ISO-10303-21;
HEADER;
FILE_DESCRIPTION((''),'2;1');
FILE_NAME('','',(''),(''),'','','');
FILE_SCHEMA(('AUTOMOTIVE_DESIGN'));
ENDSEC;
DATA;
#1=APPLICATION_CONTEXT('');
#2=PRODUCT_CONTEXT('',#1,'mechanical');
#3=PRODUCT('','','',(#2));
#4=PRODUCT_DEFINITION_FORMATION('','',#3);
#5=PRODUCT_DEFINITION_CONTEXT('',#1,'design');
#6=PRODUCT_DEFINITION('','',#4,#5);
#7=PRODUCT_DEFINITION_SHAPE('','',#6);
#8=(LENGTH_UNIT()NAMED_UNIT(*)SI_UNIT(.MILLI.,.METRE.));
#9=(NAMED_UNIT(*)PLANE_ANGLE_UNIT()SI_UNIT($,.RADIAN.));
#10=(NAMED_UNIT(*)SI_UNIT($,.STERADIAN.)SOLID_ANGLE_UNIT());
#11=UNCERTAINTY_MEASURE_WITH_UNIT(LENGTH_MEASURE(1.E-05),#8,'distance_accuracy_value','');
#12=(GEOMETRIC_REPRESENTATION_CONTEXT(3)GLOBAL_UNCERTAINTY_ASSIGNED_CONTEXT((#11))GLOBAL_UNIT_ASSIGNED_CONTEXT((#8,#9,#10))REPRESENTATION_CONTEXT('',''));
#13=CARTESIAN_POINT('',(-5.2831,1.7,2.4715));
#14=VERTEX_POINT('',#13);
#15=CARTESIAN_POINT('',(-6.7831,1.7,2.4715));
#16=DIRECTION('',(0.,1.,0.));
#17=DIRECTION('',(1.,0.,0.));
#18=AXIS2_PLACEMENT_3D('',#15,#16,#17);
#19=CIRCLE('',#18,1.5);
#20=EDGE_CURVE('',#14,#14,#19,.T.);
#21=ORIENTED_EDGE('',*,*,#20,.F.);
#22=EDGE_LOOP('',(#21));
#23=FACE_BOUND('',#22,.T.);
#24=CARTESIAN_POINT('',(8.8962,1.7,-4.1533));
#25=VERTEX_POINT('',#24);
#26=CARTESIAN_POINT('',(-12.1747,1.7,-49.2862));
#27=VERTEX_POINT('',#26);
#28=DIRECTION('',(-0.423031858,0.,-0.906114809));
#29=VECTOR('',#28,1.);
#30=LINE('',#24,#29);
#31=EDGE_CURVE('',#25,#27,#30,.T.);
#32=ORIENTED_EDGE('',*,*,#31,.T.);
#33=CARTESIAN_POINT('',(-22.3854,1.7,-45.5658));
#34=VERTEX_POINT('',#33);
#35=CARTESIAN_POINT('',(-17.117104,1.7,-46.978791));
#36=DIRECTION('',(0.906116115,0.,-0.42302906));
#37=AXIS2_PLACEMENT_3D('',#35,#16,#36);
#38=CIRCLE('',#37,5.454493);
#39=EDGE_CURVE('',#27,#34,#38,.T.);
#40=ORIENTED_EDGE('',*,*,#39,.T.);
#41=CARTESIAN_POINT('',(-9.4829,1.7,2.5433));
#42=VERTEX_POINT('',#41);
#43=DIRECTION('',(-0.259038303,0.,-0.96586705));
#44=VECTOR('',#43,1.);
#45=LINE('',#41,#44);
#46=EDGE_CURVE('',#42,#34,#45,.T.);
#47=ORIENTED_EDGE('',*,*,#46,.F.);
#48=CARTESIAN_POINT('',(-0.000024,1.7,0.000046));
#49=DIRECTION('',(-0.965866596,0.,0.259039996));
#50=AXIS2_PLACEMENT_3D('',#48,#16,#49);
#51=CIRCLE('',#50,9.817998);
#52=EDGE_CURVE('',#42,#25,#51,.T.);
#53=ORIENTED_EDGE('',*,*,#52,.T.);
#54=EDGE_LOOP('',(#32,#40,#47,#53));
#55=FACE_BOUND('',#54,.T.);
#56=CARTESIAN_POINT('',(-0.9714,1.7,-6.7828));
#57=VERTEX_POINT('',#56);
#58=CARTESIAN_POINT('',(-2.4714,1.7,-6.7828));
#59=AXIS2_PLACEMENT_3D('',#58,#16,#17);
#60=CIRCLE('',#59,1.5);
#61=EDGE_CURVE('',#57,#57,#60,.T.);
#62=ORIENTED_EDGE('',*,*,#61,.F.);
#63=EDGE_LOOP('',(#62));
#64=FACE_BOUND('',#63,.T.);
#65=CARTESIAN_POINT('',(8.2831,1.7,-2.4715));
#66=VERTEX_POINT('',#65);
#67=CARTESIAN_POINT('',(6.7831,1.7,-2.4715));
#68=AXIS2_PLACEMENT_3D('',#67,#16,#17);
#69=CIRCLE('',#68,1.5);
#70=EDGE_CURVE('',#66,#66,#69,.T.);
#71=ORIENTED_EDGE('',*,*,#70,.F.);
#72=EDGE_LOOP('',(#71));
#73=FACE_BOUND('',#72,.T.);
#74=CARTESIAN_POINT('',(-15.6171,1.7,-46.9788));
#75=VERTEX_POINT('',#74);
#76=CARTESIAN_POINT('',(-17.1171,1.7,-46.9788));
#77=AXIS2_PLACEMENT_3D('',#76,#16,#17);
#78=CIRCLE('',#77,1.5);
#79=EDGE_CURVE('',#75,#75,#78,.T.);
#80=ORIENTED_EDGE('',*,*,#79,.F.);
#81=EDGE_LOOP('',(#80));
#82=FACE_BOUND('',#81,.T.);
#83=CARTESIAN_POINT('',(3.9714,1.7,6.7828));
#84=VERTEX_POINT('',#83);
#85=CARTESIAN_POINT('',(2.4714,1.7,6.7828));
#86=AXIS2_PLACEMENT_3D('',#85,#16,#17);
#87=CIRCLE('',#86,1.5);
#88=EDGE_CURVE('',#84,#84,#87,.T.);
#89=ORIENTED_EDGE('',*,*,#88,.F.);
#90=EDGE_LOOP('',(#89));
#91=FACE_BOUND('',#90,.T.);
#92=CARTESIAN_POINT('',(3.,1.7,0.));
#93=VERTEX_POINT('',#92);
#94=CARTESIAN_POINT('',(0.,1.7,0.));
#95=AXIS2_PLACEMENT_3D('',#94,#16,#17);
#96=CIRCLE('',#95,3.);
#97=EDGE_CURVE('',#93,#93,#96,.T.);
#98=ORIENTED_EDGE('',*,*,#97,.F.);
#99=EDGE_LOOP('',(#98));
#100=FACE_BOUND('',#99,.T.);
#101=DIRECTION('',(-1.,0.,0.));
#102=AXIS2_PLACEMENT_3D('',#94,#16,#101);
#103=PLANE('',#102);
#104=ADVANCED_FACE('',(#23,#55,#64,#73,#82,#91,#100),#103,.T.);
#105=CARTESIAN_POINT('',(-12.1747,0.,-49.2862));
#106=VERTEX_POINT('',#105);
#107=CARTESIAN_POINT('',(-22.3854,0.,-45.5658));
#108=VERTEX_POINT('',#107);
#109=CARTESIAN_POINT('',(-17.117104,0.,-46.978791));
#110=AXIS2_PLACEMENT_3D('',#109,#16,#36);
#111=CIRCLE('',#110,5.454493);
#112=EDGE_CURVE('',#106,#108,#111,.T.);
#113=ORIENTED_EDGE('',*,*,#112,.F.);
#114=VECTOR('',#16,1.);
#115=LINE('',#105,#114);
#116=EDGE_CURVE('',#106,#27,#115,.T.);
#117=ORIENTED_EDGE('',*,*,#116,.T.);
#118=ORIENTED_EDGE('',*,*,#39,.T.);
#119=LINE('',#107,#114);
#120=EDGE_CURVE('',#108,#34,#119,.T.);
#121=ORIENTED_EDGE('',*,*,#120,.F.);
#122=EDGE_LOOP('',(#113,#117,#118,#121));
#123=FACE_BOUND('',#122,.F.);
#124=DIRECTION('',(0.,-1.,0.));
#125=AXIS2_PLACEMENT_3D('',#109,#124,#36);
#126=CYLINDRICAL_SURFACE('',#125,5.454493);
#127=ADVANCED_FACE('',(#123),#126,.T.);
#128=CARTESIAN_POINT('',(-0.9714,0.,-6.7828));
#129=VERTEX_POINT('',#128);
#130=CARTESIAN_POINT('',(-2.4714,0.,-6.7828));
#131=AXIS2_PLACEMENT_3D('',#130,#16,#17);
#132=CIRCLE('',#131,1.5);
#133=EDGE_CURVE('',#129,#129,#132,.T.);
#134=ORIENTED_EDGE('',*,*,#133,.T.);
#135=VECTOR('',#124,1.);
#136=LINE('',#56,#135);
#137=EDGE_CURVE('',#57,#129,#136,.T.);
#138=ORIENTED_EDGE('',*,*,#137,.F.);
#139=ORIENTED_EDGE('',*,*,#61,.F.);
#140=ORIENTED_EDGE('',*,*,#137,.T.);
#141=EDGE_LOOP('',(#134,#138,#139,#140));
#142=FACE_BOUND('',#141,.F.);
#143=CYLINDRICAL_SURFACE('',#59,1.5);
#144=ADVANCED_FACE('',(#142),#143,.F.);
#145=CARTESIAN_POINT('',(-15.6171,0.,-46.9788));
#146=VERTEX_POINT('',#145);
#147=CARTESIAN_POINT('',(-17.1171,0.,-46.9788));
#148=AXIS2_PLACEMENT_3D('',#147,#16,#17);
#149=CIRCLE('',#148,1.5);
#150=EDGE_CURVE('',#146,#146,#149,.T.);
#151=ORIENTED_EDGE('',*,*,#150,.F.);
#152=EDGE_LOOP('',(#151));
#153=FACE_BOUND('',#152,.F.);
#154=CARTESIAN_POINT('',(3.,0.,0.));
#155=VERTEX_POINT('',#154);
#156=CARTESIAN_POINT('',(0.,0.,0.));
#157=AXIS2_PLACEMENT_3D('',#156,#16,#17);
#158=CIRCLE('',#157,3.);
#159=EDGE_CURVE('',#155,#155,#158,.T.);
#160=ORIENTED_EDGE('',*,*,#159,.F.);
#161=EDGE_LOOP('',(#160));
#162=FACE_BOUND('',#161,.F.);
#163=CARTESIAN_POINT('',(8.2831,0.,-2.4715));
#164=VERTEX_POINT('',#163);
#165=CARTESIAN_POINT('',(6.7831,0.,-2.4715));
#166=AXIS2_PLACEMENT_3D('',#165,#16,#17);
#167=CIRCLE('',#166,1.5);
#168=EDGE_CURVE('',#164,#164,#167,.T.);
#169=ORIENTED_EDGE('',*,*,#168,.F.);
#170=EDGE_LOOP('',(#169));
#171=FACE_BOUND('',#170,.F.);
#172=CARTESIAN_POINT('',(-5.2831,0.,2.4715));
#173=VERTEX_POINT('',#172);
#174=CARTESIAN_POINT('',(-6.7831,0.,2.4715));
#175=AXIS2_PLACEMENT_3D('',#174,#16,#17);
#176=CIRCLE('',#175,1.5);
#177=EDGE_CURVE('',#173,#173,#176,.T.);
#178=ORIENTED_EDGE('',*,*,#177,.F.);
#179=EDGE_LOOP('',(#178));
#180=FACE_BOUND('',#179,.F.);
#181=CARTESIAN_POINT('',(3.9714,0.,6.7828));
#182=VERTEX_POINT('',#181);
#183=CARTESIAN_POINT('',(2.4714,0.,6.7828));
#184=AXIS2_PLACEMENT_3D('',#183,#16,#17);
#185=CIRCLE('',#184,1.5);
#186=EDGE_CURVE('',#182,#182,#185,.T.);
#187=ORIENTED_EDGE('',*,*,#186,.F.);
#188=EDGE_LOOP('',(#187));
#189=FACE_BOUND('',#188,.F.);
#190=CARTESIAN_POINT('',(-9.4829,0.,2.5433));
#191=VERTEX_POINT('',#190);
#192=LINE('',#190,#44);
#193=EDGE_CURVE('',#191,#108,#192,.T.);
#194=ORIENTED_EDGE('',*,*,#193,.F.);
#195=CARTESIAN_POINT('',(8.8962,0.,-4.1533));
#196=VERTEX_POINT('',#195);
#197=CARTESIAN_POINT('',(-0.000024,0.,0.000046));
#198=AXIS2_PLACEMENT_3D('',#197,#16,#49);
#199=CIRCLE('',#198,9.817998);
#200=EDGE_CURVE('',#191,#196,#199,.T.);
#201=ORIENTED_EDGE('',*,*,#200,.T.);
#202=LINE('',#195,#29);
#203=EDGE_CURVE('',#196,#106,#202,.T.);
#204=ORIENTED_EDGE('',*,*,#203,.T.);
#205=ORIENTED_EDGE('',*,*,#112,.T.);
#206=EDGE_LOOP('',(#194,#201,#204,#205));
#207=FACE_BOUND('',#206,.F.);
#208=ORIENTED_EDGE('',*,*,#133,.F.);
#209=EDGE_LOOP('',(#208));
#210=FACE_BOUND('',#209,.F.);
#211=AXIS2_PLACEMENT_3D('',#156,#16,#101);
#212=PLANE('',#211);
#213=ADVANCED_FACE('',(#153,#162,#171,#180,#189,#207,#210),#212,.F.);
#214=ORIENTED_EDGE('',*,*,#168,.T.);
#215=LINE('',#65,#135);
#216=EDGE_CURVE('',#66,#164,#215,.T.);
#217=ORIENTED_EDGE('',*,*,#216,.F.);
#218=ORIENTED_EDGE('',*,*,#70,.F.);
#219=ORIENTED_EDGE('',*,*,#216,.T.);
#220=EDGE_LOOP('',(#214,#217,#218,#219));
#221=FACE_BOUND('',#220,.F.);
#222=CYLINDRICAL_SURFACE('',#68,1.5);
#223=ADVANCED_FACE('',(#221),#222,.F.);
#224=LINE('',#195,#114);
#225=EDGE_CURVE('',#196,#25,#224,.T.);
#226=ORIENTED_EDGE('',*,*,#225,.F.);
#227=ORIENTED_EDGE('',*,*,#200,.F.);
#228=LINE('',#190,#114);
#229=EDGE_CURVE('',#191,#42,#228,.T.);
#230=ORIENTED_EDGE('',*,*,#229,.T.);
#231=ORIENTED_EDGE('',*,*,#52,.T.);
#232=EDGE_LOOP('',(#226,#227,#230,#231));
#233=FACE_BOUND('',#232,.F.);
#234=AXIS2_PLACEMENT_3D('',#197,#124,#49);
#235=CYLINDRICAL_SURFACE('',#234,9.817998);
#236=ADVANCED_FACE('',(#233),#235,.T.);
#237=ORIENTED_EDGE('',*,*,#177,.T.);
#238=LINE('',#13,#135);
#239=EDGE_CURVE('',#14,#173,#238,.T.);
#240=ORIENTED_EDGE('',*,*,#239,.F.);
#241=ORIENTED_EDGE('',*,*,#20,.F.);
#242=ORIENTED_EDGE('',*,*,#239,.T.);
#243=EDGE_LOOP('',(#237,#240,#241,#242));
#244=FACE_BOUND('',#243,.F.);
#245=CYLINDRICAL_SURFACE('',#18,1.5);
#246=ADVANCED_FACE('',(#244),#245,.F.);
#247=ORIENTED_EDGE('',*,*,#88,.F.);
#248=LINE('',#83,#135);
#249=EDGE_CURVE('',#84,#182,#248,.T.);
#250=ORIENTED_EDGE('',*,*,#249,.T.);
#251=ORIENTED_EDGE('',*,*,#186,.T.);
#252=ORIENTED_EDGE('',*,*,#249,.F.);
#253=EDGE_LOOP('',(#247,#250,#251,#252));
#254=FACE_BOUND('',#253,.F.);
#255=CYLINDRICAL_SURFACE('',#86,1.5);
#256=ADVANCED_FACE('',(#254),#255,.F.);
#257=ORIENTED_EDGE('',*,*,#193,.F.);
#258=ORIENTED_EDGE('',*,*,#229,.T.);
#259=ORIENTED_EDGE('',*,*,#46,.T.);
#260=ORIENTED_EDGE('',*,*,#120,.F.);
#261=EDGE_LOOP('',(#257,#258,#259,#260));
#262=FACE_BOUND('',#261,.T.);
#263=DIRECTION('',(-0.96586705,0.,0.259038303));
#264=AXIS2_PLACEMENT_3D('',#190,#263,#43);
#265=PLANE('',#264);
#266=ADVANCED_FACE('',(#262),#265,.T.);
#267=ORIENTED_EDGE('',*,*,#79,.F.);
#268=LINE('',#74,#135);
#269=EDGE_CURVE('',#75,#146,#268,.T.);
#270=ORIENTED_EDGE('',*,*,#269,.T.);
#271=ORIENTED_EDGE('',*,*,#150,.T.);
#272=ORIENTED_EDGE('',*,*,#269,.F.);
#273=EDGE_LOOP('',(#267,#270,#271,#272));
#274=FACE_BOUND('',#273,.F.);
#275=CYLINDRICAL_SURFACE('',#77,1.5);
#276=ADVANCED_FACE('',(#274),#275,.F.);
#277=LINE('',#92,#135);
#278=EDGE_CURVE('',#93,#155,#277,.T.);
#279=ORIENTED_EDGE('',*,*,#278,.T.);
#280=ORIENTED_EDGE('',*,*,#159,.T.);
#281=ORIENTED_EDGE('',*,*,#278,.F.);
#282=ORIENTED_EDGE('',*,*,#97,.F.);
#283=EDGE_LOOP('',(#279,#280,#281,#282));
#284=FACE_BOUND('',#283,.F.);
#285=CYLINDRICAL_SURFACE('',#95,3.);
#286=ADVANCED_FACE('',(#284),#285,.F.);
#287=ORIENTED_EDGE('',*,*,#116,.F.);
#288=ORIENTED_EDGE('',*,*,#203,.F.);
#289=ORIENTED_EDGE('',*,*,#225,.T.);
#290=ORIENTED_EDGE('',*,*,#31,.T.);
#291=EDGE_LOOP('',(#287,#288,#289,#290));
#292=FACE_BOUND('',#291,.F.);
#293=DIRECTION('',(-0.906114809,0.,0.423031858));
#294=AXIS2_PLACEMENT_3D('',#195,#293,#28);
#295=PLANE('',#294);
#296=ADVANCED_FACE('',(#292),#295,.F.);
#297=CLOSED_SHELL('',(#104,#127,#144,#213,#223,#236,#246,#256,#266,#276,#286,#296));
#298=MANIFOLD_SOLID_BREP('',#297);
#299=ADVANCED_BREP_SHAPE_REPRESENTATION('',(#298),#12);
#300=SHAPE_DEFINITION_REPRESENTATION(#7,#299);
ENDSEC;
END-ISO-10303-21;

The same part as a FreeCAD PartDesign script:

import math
import FreeCAD as App
import Part
import Sketcher
Q = App.Units.Quantity

doc = App.newDocument("Part")
body = doc.addObject("PartDesign::Body", "Body")

# Sketch on XZ plane
sketch1 = body.newObject("Sketcher::SketchObject", "Sketch")
sketch1.AttachmentSupport = (doc.getObject("XZ_Plane"), [""])
sketch1.MapMode = "FlatFace"
sketch1.addGeometry([
    Part.LineSegment(App.Vector(-22.3854, -45.5658, 0), App.Vector(-9.4829, 2.5433, 0)),
    Part.ArcOfCircle(Part.Circle(App.Vector(0, 0, 0), App.Vector(0, 0, 1), 9.818033), math.radians(-25.026095), math.radians(164.986671)),
    Part.LineSegment(App.Vector(8.8962, -4.1533, 0), App.Vector(-12.1747, -49.2862, 0)),
    Part.ArcOfCircle(Part.Circle(App.Vector(-17.1171, -46.9788, 0), App.Vector(0, 0, 1), 5.454486), math.radians(164.986168), math.radians(334.974095)),
], False)
sketch1.addConstraint([
    Sketcher.Constraint("Coincident", 0, 2, 1, 2),
    Sketcher.Constraint("Coincident", 1, 1, 2, 1),
    Sketcher.Constraint("Coincident", 2, 2, 3, 2),
    Sketcher.Constraint("Coincident", 3, 1, 0, 1),
    Sketcher.Constraint("Coincident", 1, 3, -1, 1),
    Sketcher.Constraint("Radius", 1, Q("9.818 mm")),
    Sketcher.Constraint("Radius", 3, Q("5.4545 mm")),
    Sketcher.Constraint("DistanceX", 3, 3, -1, 1, Q("17.117 mm")),
    Sketcher.Constraint("DistanceX", 0, 2, -1, 1, Q("9.483 mm")),
    Sketcher.Constraint("DistanceY", 3, 3, 0, 2, Q("49.522 mm")),
    Sketcher.Constraint("DistanceX", 2, 2, 1, 1, Q("21.071 mm")),
    Sketcher.Constraint("DistanceY", 3, 3, 3, 1, Q("1.413 mm")),
    Sketcher.Constraint("DistanceX", -1, 1, 1, 1, Q("8.8963 mm")),
])
pad1 = body.newObject("PartDesign::Pad", "Pad")
pad1.Profile = sketch1
pad1.Length = 1.7
pad1.Reversed = True

# Sketch on XZ plane
sketch2 = body.newObject("Sketcher::SketchObject", "Sketch001")
sketch2.AttachmentSupport = (doc.getObject("XZ_Plane"), [""])
sketch2.MapMode = "FlatFace"
sketch2.AttachmentOffset = App.Placement(App.Vector(0, 0, -1.7), App.Rotation())
sketch2.addGeometry([
    Part.Circle(App.Vector(0, 0, 0), App.Vector(0, 0, 1), 1.5),  # 0
    Part.Circle(App.Vector(-17.1, -47, 0), App.Vector(0, 0, 1), 1.5),  # 1
    Part.Circle(App.Vector(6.8, -2.5, 0), App.Vector(0, 0, 1), 1.5),  # 2
    Part.Circle(App.Vector(-6.8, 2.5, 0), App.Vector(0, 0, 1), 1.5),  # 3
    Part.Circle(App.Vector(-2.5, -6.8, 0), App.Vector(0, 0, 1), 1.5),  # 4
    Part.Circle(App.Vector(2.5, 6.8, 0), App.Vector(0, 0, 1), 1.5),  # 5
], False)
sketch2.addConstraint([
    Sketcher.Constraint("Coincident", 0, 3, -1, 1),
    Sketcher.Constraint("Equal", 0, 1),
    Sketcher.Constraint("Equal", 1, 2),
    Sketcher.Constraint("Equal", 2, 3),
    Sketcher.Constraint("Equal", 3, 4),
    Sketcher.Constraint("Equal", 4, 5),
    Sketcher.Constraint("Symmetric", 2, 3, 3, 3, -1, 1),
    Sketcher.Constraint("Symmetric", 4, 3, 5, 3, -1, 1),
    Sketcher.Constraint("Diameter", 0, Q("3 mm")),
    Sketcher.Constraint("DistanceX", 1, 3, -1, 1, Q("17.117 mm")),
    Sketcher.Constraint("DistanceX", -1, 1, 2, 3, Q("6.783 mm")),
    Sketcher.Constraint("DistanceY", 2, 3, 3, 3, Q("4.943 mm")),
    Sketcher.Constraint("DistanceY", 1, 3, 4, 3, Q("40.196 mm")),
    Sketcher.Constraint("DistanceY", 1, 3, -1, 1, Q("46.9788 mm")),
    Sketcher.Constraint("DistanceX", 4, 3, -1, 1, Q("2.4714 mm")),
])
pocket1 = body.newObject("PartDesign::Pocket", "Pocket")
pocket1.Profile = sketch2
pocket1.Length = 1.7
pocket1.Reversed = True

# Sketch on XZ plane
sketch3 = body.newObject("Sketcher::SketchObject", "Sketch002")
sketch3.AttachmentSupport = (doc.getObject("XZ_Plane"), [""])
sketch3.MapMode = "FlatFace"
sketch3.AttachmentOffset = App.Placement(App.Vector(0, 0, -1.7), App.Rotation())
sketch3.addGeometry(Part.Circle(App.Vector(0, 0, 0), App.Vector(0, 0, 1), 3), False)
sketch3.addConstraint([
    Sketcher.Constraint("Coincident", 0, 3, -1, 1),
    Sketcher.Constraint("Diameter", 0, Q("6 mm")),
])
pocket2 = body.newObject("PartDesign::Pocket", "Pocket001")
pocket2.Profile = sketch3
pocket2.Type = "ThroughAll"
pocket2.Reversed = True

doc.recompute()
